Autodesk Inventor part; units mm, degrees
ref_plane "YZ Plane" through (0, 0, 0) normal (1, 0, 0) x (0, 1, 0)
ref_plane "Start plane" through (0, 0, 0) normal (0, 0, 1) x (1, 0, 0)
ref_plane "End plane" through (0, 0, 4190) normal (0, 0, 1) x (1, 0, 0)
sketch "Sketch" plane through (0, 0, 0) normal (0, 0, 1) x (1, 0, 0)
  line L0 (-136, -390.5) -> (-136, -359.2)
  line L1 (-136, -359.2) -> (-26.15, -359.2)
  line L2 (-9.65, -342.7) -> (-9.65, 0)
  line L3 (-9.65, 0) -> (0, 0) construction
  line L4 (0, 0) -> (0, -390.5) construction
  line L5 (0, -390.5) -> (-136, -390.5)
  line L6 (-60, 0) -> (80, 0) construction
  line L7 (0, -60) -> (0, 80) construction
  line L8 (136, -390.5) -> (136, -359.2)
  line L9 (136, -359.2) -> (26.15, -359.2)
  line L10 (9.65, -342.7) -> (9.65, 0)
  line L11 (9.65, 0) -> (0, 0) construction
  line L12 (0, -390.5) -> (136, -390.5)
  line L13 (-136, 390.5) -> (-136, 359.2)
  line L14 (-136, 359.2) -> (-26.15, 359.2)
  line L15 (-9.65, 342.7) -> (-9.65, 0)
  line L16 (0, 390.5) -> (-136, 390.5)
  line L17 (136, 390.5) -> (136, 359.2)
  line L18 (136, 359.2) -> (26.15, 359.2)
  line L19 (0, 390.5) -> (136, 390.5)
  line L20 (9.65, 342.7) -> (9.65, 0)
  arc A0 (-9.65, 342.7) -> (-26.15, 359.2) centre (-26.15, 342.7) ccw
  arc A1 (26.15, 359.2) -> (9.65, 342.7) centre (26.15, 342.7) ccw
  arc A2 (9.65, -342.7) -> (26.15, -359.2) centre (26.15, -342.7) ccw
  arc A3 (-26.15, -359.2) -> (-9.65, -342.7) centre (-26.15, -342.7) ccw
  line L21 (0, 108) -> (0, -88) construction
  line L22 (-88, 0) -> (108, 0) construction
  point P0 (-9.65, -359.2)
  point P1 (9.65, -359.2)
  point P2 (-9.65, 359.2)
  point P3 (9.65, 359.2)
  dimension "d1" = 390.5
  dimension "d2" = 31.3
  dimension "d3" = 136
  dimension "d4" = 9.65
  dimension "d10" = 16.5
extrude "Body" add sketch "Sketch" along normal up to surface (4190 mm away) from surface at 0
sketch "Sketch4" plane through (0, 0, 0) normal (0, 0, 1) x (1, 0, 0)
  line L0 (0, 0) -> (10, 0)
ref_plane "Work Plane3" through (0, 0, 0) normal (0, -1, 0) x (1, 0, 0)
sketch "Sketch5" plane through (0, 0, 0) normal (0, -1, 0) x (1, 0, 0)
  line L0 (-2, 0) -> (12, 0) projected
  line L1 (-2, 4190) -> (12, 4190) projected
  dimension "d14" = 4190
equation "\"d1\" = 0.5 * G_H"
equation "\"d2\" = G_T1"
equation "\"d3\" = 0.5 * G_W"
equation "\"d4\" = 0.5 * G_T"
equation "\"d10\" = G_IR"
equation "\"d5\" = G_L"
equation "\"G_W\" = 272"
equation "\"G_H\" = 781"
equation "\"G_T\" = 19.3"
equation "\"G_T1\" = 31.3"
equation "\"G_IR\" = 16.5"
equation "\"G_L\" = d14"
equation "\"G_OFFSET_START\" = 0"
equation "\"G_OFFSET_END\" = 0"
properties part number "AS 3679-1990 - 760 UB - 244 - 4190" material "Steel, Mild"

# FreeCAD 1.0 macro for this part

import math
import FreeCAD as App
import Part
import Sketcher
Q = App.Units.Quantity

doc = App.newDocument("Part")
params = doc.addObject("Spreadsheet::Sheet", "Params")
for row, (alias, value) in enumerate([
    ("sketch1_radius", "16.5 mm"),
    ("sketch1_height", "31.3 mm"),
    ("pad1_length", "4190 mm"),
], start=1):
    params.set(f"A{row}", alias)
    params.set(f"B{row}", "=" + value)
    params.setAlias(f"B{row}", alias)

body = doc.addObject("PartDesign::Body", "Body")

sketch1 = body.newObject("Sketcher::SketchObject", "Sketch")
sketch1.AttachmentSupport = (doc.getObject("XY_Plane"), [""])
sketch1.MapMode = "FlatFace"
sketch1.addGeometry([
    Part.LineSegment(App.Vector(-136, -359.2, 0), App.Vector(-136, -390.5, 0)),
    Part.LineSegment(App.Vector(-136, -390.5, 0), App.Vector(136, -390.5, 0)),
    Part.LineSegment(App.Vector(136, -390.5, 0), App.Vector(136, -359.2, 0)),
    Part.LineSegment(App.Vector(136, -359.2, 0), App.Vector(26.15, -359.2, 0)),
    Part.ArcOfCircle(Part.Circle(App.Vector(26.15, -342.7, 0), App.Vector(0, 0, 1), 16.5), math.radians(180), math.radians(270)),
    Part.LineSegment(App.Vector(9.65, -342.7, 0), App.Vector(9.65, 342.7, 0)),
    Part.ArcOfCircle(Part.Circle(App.Vector(26.15, 342.7, 0), App.Vector(0, 0, 1), 16.5), math.radians(90), math.radians(180)),
    Part.LineSegment(App.Vector(26.15, 359.2, 0), App.Vector(136, 359.2, 0)),
    Part.LineSegment(App.Vector(136, 359.2, 0), App.Vector(136, 390.5, 0)),
    Part.LineSegment(App.Vector(136, 390.5, 0), App.Vector(-136, 390.5, 0)),
    Part.LineSegment(App.Vector(-136, 390.5, 0), App.Vector(-136, 359.2, 0)),
    Part.LineSegment(App.Vector(-136, 359.2, 0), App.Vector(-26.15, 359.2, 0)),
    Part.ArcOfCircle(Part.Circle(App.Vector(-26.15, 342.7, 0), App.Vector(0, 0, 1), 16.5), math.radians(0), math.radians(90)),
    Part.LineSegment(App.Vector(-9.65, 342.7, 0), App.Vector(-9.65, -342.7, 0)),
    Part.ArcOfCircle(Part.Circle(App.Vector(-26.15, -342.7, 0), App.Vector(0, 0, 1), 16.5), math.radians(-90), math.radians(0)),
    Part.LineSegment(App.Vector(-26.15, -359.2, 0), App.Vector(-136, -359.2, 0)),
], False)
sketch1.addConstraint([
    Sketcher.Constraint("Coincident", 0, 2, 1, 1),
    Sketcher.Constraint("Coincident", 1, 2, 2, 1),
    Sketcher.Constraint("Coincident", 2, 2, 3, 1),
    Sketcher.Constraint("Tangent", 3, 2, 4, 2),
    Sketcher.Constraint("Tangent", 4, 1, 5, 1),
    Sketcher.Constraint("Tangent", 5, 2, 6, 2),
    Sketcher.Constraint("Tangent", 6, 1, 7, 1),
    Sketcher.Constraint("Coincident", 7, 2, 8, 1),
    Sketcher.Constraint("Coincident", 8, 2, 9, 1),
    Sketcher.Constraint("Coincident", 9, 2, 10, 1),
    Sketcher.Constraint("Coincident", 10, 2, 11, 1),
    Sketcher.Constraint("Tangent", 11, 2, 12, 2),
    Sketcher.Constraint("Tangent", 12, 1, 13, 1),
    Sketcher.Constraint("Tangent", 13, 2, 14, 2),
    Sketcher.Constraint("Tangent", 14, 1, 15, 1),
    Sketcher.Constraint("Coincident", 15, 2, 0, 1),
    Sketcher.Constraint("Vertical", 0),
    Sketcher.Constraint("Horizontal", 1),
    Sketcher.Constraint("Vertical", 2),
    Sketcher.Constraint("Horizontal", 3),
    Sketcher.Constraint("Vertical", 5),
    Sketcher.Constraint("Horizontal", 7),
    Sketcher.Constraint("Vertical", 8),
    Sketcher.Constraint("Horizontal", 9),
    Sketcher.Constraint("Vertical", 10),
    Sketcher.Constraint("Horizontal", 11),
    Sketcher.Constraint("Vertical", 13),
    Sketcher.Constraint("Horizontal", 15),
    Sketcher.Constraint("Equal", 4, 6),
    Sketcher.Constraint("Equal", 6, 12),
    Sketcher.Constraint("Equal", 12, 14),
    Sketcher.Constraint("Symmetric", 4, 3, 12, 3, -1, 1),
    Sketcher.Constraint("Symmetric", 0, 2, 8, 2, -1, 1),
    Sketcher.Constraint("Symmetric", 7, 2, 10, 2, -2),
    Sketcher.Constraint("Symmetric", 2, 2, 15, 2, -2),
    Sketcher.Constraint("Radius", 4, Q("16.5 mm")),
    Sketcher.Constraint("DistanceY", 0, 2, 0, 1, Q("31.3 mm")),
    Sketcher.Constraint("DistanceX", 0, 2, -1, 1, Q("136 mm")),
    Sketcher.Constraint("DistanceY", 0, 2, -1, 1, Q("390.5 mm")),
    Sketcher.Constraint("DistanceX", -1, 1, 4, 1, Q("9.65 mm")),
])
sketch1.setExpression("Constraints[35]", "Params.sketch1_radius")
sketch1.setExpression("Constraints[36]", "Params.sketch1_height")
pad1 = body.newObject("PartDesign::Pad", "Pad")
pad1.Profile = sketch1
pad1.setExpression("Length", "Params.pad1_length")

doc.recompute()
